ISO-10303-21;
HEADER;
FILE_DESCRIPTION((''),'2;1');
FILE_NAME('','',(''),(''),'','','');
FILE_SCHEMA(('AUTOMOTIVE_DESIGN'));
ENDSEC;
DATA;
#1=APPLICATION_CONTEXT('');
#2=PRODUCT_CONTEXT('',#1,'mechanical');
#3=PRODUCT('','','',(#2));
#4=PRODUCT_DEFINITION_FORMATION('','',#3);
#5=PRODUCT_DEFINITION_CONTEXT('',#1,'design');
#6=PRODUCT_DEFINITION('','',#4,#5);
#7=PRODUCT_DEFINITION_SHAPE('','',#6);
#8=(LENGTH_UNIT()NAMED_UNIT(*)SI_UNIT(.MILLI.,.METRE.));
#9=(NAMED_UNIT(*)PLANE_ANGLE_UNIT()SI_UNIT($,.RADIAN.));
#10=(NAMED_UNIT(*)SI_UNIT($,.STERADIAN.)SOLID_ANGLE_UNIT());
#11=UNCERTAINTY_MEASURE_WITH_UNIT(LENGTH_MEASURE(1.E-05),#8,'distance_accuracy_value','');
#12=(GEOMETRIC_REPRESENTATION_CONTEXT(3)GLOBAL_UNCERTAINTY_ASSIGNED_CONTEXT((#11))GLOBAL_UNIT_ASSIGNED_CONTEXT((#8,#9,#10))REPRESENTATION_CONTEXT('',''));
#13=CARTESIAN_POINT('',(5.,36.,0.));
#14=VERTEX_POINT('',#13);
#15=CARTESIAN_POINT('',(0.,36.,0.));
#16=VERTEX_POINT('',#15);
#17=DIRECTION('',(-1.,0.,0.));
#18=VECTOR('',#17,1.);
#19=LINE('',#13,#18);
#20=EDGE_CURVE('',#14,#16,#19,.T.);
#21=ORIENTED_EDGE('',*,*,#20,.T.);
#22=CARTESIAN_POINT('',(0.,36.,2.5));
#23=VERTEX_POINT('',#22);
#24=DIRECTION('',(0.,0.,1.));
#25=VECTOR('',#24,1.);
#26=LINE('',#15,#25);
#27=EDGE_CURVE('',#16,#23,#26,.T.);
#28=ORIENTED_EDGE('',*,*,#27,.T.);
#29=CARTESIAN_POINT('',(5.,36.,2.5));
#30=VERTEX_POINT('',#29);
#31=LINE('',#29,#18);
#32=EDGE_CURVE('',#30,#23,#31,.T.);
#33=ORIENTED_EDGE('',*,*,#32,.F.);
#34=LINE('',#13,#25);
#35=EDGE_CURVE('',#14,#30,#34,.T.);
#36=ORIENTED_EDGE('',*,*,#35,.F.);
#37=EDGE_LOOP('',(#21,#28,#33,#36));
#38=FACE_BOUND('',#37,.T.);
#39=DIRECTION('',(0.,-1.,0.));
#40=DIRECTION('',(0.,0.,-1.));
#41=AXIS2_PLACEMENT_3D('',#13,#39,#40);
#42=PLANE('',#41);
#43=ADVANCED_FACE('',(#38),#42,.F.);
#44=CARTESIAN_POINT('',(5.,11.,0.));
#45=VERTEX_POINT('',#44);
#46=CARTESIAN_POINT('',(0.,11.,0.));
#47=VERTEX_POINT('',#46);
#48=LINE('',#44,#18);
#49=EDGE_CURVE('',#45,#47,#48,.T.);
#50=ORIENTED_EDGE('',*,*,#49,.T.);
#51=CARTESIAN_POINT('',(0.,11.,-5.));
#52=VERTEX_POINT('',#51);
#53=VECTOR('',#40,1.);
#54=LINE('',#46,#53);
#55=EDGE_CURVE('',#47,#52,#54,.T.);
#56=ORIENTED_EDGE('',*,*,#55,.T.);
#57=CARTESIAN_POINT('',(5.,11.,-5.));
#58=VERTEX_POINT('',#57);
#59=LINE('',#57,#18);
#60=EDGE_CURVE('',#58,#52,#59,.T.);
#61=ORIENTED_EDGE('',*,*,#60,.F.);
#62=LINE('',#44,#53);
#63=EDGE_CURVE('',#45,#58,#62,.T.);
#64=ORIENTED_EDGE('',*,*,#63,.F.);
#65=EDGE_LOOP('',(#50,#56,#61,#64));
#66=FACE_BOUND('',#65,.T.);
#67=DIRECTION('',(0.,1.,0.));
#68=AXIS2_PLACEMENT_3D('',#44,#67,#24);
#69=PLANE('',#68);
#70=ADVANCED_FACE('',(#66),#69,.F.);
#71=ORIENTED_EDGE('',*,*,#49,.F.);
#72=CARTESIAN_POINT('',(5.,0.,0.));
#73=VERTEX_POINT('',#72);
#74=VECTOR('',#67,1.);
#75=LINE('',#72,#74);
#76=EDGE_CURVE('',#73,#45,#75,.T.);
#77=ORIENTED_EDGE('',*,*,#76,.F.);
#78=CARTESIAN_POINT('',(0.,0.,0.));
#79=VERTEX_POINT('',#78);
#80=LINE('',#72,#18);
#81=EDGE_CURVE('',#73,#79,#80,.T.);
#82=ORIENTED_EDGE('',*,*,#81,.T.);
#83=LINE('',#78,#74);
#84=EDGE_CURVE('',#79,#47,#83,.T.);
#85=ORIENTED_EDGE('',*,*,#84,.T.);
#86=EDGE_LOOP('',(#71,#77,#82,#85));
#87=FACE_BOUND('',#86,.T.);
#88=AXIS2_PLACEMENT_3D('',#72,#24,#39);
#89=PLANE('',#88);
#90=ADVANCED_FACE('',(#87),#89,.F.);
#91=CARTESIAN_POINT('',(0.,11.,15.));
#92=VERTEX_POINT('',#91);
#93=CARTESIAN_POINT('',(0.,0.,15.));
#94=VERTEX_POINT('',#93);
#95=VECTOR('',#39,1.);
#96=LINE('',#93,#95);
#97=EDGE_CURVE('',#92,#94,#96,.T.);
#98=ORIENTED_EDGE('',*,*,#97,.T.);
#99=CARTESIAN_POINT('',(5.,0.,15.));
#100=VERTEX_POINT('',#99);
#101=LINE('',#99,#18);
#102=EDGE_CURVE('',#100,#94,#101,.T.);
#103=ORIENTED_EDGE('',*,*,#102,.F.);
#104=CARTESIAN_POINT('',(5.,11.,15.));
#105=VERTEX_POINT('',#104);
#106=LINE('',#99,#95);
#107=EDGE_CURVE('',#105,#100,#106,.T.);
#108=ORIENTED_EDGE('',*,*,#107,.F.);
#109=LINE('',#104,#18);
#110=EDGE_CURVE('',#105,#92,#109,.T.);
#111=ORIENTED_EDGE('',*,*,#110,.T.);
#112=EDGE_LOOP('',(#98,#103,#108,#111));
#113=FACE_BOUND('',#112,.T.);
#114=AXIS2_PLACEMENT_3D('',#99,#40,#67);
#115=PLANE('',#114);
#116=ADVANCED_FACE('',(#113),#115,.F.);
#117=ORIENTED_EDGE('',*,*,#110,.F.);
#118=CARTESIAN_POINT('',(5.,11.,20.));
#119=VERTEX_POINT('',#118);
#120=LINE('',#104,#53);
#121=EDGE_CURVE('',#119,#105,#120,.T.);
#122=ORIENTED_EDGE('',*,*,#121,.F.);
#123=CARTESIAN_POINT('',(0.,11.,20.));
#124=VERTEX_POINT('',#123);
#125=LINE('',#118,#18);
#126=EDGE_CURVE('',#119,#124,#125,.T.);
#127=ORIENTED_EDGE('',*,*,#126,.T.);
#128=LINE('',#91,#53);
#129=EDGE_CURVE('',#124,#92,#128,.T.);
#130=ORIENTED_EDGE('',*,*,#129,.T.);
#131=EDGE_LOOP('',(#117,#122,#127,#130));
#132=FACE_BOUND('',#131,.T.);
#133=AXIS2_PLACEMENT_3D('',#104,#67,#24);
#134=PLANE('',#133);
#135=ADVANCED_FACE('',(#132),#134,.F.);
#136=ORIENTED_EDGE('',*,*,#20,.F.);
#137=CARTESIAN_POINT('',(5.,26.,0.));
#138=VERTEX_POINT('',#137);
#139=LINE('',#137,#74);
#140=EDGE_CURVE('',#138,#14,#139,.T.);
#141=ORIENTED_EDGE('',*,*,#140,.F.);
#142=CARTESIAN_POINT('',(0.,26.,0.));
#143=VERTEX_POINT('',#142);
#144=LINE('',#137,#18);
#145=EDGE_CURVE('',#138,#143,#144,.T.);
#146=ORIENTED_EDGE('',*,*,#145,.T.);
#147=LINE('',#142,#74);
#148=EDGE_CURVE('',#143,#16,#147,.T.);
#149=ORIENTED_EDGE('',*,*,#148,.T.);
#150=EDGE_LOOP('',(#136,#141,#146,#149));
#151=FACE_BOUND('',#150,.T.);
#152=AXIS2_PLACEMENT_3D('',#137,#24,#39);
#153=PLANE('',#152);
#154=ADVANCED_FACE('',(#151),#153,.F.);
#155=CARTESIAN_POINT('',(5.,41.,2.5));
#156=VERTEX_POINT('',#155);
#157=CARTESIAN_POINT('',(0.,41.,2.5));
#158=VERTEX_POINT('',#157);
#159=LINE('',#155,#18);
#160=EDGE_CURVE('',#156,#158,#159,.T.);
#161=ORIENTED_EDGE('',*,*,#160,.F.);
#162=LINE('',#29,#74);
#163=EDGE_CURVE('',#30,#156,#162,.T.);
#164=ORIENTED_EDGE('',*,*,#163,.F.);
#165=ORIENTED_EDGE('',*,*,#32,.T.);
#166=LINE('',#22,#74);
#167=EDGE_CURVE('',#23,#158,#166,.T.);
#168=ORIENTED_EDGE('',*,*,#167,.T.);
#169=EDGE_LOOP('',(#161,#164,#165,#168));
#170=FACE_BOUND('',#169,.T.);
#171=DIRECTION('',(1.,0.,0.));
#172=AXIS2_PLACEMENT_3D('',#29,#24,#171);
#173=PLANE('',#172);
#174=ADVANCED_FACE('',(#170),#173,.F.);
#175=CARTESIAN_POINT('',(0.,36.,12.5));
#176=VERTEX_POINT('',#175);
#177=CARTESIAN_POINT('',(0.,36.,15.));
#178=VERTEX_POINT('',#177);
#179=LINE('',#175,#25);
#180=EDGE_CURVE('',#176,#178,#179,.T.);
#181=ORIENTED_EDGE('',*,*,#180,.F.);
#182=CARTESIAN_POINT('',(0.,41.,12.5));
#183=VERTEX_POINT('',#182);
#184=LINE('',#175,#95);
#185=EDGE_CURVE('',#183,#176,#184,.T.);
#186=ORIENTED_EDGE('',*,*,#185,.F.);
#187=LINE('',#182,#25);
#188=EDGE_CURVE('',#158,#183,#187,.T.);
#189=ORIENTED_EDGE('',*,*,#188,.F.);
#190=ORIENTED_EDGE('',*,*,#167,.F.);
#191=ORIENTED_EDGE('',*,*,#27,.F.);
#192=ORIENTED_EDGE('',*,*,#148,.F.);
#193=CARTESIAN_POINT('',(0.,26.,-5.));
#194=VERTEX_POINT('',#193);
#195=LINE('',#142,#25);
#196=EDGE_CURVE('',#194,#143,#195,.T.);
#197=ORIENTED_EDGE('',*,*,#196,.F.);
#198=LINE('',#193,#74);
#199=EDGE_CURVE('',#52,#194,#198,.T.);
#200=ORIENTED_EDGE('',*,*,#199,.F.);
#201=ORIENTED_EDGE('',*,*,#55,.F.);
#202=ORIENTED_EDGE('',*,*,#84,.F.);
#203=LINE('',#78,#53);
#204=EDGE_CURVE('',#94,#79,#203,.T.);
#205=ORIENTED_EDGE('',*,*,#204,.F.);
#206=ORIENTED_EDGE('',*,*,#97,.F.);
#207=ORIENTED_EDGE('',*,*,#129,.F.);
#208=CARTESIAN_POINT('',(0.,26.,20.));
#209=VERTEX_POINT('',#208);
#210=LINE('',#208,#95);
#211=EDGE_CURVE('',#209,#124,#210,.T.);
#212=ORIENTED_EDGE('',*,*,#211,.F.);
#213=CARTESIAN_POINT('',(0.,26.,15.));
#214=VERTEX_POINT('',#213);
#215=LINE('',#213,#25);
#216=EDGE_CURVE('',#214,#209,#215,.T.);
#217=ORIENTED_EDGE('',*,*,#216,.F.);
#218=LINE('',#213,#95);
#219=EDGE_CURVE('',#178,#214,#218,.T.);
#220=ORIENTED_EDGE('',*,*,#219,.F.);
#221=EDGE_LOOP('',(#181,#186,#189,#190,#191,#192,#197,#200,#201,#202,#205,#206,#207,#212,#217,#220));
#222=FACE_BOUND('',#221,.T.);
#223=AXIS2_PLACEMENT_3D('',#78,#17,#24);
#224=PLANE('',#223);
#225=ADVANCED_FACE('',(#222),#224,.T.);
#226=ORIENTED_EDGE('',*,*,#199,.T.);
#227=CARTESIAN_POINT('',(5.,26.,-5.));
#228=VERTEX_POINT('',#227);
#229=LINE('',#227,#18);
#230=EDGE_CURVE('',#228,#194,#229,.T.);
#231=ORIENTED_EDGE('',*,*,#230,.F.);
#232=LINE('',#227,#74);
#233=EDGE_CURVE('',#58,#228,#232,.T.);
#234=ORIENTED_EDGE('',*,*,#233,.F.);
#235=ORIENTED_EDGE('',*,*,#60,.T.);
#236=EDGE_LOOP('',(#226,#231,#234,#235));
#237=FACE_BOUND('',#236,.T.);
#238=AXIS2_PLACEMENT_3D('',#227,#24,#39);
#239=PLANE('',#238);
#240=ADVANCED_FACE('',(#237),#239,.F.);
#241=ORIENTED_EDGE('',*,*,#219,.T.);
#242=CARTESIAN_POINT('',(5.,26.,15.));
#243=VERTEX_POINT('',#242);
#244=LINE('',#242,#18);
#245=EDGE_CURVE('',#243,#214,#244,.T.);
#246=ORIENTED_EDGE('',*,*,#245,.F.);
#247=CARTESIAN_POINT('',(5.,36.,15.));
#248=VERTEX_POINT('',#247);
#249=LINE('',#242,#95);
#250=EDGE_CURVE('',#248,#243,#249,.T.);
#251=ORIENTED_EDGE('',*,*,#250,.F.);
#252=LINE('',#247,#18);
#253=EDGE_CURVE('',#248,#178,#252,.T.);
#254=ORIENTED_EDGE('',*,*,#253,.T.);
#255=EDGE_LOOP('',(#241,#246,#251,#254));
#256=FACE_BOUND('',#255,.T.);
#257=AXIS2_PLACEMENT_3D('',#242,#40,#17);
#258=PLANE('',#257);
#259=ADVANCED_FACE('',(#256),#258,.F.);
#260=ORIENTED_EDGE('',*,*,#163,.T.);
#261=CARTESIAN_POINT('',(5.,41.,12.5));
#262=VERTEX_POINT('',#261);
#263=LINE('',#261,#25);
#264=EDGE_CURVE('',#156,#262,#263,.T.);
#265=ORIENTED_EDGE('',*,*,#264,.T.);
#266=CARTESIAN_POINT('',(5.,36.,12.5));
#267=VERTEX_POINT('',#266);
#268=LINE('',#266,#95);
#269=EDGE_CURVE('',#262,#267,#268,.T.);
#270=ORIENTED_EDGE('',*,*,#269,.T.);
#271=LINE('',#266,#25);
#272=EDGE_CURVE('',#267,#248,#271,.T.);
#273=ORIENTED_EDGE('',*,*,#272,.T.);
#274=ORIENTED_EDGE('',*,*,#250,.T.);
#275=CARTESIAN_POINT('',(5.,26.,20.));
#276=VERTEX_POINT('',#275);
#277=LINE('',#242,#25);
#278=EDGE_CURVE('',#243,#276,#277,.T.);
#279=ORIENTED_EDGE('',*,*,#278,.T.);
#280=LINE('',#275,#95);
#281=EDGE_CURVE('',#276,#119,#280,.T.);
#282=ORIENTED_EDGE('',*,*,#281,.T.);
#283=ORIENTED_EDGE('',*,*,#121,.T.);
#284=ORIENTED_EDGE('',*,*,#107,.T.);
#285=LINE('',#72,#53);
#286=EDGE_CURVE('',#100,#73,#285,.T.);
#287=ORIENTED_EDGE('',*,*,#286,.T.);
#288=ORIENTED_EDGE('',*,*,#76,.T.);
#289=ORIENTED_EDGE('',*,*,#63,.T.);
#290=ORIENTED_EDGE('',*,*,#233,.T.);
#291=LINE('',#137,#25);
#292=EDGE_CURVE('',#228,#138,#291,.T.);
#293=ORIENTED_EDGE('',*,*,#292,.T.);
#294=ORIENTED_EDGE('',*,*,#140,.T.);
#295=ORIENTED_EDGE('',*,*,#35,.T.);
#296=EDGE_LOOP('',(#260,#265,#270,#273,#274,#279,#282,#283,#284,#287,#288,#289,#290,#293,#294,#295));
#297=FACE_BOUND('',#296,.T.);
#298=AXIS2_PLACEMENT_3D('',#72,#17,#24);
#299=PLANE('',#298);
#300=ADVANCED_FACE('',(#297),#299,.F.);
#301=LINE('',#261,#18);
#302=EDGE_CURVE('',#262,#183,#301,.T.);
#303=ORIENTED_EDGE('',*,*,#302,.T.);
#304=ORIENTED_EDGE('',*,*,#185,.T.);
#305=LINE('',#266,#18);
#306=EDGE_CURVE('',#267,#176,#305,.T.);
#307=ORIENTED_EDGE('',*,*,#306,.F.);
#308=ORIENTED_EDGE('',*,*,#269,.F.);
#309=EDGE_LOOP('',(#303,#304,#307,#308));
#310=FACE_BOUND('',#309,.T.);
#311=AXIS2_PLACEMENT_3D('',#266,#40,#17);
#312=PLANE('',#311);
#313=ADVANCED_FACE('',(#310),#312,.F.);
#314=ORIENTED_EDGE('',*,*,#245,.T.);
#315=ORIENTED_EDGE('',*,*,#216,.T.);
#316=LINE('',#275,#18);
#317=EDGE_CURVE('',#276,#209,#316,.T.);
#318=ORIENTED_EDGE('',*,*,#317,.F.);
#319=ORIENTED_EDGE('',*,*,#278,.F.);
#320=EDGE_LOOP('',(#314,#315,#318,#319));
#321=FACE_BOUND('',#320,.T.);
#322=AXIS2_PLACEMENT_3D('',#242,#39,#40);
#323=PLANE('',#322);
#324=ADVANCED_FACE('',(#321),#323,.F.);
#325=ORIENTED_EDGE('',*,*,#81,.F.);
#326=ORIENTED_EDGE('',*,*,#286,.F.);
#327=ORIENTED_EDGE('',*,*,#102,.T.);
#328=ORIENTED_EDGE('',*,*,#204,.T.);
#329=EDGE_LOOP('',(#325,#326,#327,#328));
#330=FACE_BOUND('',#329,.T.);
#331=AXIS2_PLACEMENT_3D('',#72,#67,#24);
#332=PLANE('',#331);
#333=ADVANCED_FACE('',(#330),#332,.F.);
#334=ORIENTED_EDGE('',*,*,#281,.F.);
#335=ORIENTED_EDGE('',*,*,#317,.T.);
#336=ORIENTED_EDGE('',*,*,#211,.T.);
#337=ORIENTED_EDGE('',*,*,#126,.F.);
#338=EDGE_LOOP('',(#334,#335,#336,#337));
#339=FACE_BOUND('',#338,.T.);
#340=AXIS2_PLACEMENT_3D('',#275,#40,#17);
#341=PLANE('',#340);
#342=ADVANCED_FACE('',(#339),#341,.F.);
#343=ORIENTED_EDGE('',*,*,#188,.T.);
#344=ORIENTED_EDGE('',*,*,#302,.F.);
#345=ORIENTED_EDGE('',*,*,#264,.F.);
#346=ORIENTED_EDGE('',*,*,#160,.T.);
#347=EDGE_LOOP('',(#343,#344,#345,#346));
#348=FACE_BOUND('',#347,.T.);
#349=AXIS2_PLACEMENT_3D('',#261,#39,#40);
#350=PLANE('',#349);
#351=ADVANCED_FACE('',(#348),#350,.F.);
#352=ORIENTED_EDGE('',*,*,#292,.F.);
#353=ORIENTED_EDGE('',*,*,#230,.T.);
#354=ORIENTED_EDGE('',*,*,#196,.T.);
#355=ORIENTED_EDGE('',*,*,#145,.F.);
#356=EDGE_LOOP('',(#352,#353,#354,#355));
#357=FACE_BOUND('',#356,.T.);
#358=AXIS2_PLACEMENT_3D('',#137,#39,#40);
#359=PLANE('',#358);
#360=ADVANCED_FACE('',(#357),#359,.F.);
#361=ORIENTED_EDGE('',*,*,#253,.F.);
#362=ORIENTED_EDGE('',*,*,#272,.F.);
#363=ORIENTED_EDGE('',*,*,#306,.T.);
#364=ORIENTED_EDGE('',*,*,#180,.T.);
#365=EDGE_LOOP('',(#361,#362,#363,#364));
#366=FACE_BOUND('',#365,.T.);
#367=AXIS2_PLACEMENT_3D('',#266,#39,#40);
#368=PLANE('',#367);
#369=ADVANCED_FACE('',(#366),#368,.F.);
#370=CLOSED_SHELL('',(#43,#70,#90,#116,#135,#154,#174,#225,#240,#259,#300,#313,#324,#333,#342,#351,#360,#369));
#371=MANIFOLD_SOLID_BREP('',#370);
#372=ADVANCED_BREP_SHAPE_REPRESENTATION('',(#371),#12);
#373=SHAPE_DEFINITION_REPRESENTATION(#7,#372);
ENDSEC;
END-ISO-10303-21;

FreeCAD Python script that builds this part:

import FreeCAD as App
import Part
import Sketcher


def add_polygon(sketch, points):
    """Adds a closed chain of lines whose ends are joined by coincident constraints."""
    first, n = sketch.GeometryCount, len(points)
    for a, b in zip(points, points[1:] + points[:1]):
        sketch.addGeometry(Part.LineSegment(App.Vector(*a, 0), App.Vector(*b, 0)), False)
    for i in range(n):
        sketch.addConstraint(Sketcher.Constraint("Coincident", first + i, 2, first + (i + 1) % n, 1))

doc = App.newDocument("Part")
body = doc.addObject("PartDesign::Body", "Body")

# Sketch on YZ plane
sketch1 = body.newObject("Sketcher::SketchObject", "Sketch")
sketch1.AttachmentSupport = (doc.getObject("YZ_Plane"), [""])
sketch1.MapMode = "FlatFace"
add_polygon(sketch1, [(36, 12.5), (36, 15), (26, 15), (26, 20), (11, 20), (11, 15), (0, 15), (0, 0), (11, 0), (11, -5), (26, -5), (26, 0), (36, 0), (36, 2.5), (41, 2.5), (41, 12.5)])  # lines 0-15
sketch1.addConstraint([
    Sketcher.Constraint("Vertical", 0),
    Sketcher.Constraint("Horizontal", 1),
    Sketcher.Constraint("Vertical", 2),
    Sketcher.Constraint("Horizontal", 3),
    Sketcher.Constraint("Vertical", 4),
    Sketcher.Constraint("Horizontal", 5),
    Sketcher.Constraint("Vertical", 6),
    Sketcher.Constraint("Horizontal", 7),
    Sketcher.Constraint("Vertical", 8),
    Sketcher.Constraint("Horizontal", 9),
    Sketcher.Constraint("Vertical", 10),
    Sketcher.Constraint("Horizontal", 11),
    Sketcher.Constraint("Vertical", 12),
    Sketcher.Constraint("Horizontal", 13),
    Sketcher.Constraint("Vertical", 14),
    Sketcher.Constraint("Horizontal", 15),
    Sketcher.Constraint("Coincident", 6, 2, -1, 1),
    Sketcher.Constraint("PointOnObject", 10, 2, -1),
    Sketcher.Constraint("Horizontal", 1, 2, 4, 2),
    Sketcher.Constraint("Vertical", 4, 2, 7, 2),
    Sketcher.Constraint("Vertical", 2, 2, 9, 2),
    Sketcher.Constraint("Vertical", 0, 2, 11, 2),
    Sketcher.Constraint("Equal", 15, 2),
    Sketcher.Constraint("Equal", 9, 6),
    Sketcher.Constraint("Equal", 4, 8),
    Sketcher.Constraint("Equal", 0, 12),
    Sketcher.Constraint("Equal", 11, 14),
    Sketcher.Constraint("DistanceX", 1, 2, 1, 1, 10.0),
    Sketcher.Constraint("DistanceX", 3, 2, 3, 1, 15.0),
    Sketcher.Constraint("DistanceX", 5, 2, 5, 1, 11.0),
    Sketcher.Constraint("DistanceX", 13, 1, 13, 2, 5.0),
])
pad1 = body.newObject("PartDesign::Pad", "Pad")
pad1.Profile = sketch1
pad1.Length = 5

doc.recompute()
